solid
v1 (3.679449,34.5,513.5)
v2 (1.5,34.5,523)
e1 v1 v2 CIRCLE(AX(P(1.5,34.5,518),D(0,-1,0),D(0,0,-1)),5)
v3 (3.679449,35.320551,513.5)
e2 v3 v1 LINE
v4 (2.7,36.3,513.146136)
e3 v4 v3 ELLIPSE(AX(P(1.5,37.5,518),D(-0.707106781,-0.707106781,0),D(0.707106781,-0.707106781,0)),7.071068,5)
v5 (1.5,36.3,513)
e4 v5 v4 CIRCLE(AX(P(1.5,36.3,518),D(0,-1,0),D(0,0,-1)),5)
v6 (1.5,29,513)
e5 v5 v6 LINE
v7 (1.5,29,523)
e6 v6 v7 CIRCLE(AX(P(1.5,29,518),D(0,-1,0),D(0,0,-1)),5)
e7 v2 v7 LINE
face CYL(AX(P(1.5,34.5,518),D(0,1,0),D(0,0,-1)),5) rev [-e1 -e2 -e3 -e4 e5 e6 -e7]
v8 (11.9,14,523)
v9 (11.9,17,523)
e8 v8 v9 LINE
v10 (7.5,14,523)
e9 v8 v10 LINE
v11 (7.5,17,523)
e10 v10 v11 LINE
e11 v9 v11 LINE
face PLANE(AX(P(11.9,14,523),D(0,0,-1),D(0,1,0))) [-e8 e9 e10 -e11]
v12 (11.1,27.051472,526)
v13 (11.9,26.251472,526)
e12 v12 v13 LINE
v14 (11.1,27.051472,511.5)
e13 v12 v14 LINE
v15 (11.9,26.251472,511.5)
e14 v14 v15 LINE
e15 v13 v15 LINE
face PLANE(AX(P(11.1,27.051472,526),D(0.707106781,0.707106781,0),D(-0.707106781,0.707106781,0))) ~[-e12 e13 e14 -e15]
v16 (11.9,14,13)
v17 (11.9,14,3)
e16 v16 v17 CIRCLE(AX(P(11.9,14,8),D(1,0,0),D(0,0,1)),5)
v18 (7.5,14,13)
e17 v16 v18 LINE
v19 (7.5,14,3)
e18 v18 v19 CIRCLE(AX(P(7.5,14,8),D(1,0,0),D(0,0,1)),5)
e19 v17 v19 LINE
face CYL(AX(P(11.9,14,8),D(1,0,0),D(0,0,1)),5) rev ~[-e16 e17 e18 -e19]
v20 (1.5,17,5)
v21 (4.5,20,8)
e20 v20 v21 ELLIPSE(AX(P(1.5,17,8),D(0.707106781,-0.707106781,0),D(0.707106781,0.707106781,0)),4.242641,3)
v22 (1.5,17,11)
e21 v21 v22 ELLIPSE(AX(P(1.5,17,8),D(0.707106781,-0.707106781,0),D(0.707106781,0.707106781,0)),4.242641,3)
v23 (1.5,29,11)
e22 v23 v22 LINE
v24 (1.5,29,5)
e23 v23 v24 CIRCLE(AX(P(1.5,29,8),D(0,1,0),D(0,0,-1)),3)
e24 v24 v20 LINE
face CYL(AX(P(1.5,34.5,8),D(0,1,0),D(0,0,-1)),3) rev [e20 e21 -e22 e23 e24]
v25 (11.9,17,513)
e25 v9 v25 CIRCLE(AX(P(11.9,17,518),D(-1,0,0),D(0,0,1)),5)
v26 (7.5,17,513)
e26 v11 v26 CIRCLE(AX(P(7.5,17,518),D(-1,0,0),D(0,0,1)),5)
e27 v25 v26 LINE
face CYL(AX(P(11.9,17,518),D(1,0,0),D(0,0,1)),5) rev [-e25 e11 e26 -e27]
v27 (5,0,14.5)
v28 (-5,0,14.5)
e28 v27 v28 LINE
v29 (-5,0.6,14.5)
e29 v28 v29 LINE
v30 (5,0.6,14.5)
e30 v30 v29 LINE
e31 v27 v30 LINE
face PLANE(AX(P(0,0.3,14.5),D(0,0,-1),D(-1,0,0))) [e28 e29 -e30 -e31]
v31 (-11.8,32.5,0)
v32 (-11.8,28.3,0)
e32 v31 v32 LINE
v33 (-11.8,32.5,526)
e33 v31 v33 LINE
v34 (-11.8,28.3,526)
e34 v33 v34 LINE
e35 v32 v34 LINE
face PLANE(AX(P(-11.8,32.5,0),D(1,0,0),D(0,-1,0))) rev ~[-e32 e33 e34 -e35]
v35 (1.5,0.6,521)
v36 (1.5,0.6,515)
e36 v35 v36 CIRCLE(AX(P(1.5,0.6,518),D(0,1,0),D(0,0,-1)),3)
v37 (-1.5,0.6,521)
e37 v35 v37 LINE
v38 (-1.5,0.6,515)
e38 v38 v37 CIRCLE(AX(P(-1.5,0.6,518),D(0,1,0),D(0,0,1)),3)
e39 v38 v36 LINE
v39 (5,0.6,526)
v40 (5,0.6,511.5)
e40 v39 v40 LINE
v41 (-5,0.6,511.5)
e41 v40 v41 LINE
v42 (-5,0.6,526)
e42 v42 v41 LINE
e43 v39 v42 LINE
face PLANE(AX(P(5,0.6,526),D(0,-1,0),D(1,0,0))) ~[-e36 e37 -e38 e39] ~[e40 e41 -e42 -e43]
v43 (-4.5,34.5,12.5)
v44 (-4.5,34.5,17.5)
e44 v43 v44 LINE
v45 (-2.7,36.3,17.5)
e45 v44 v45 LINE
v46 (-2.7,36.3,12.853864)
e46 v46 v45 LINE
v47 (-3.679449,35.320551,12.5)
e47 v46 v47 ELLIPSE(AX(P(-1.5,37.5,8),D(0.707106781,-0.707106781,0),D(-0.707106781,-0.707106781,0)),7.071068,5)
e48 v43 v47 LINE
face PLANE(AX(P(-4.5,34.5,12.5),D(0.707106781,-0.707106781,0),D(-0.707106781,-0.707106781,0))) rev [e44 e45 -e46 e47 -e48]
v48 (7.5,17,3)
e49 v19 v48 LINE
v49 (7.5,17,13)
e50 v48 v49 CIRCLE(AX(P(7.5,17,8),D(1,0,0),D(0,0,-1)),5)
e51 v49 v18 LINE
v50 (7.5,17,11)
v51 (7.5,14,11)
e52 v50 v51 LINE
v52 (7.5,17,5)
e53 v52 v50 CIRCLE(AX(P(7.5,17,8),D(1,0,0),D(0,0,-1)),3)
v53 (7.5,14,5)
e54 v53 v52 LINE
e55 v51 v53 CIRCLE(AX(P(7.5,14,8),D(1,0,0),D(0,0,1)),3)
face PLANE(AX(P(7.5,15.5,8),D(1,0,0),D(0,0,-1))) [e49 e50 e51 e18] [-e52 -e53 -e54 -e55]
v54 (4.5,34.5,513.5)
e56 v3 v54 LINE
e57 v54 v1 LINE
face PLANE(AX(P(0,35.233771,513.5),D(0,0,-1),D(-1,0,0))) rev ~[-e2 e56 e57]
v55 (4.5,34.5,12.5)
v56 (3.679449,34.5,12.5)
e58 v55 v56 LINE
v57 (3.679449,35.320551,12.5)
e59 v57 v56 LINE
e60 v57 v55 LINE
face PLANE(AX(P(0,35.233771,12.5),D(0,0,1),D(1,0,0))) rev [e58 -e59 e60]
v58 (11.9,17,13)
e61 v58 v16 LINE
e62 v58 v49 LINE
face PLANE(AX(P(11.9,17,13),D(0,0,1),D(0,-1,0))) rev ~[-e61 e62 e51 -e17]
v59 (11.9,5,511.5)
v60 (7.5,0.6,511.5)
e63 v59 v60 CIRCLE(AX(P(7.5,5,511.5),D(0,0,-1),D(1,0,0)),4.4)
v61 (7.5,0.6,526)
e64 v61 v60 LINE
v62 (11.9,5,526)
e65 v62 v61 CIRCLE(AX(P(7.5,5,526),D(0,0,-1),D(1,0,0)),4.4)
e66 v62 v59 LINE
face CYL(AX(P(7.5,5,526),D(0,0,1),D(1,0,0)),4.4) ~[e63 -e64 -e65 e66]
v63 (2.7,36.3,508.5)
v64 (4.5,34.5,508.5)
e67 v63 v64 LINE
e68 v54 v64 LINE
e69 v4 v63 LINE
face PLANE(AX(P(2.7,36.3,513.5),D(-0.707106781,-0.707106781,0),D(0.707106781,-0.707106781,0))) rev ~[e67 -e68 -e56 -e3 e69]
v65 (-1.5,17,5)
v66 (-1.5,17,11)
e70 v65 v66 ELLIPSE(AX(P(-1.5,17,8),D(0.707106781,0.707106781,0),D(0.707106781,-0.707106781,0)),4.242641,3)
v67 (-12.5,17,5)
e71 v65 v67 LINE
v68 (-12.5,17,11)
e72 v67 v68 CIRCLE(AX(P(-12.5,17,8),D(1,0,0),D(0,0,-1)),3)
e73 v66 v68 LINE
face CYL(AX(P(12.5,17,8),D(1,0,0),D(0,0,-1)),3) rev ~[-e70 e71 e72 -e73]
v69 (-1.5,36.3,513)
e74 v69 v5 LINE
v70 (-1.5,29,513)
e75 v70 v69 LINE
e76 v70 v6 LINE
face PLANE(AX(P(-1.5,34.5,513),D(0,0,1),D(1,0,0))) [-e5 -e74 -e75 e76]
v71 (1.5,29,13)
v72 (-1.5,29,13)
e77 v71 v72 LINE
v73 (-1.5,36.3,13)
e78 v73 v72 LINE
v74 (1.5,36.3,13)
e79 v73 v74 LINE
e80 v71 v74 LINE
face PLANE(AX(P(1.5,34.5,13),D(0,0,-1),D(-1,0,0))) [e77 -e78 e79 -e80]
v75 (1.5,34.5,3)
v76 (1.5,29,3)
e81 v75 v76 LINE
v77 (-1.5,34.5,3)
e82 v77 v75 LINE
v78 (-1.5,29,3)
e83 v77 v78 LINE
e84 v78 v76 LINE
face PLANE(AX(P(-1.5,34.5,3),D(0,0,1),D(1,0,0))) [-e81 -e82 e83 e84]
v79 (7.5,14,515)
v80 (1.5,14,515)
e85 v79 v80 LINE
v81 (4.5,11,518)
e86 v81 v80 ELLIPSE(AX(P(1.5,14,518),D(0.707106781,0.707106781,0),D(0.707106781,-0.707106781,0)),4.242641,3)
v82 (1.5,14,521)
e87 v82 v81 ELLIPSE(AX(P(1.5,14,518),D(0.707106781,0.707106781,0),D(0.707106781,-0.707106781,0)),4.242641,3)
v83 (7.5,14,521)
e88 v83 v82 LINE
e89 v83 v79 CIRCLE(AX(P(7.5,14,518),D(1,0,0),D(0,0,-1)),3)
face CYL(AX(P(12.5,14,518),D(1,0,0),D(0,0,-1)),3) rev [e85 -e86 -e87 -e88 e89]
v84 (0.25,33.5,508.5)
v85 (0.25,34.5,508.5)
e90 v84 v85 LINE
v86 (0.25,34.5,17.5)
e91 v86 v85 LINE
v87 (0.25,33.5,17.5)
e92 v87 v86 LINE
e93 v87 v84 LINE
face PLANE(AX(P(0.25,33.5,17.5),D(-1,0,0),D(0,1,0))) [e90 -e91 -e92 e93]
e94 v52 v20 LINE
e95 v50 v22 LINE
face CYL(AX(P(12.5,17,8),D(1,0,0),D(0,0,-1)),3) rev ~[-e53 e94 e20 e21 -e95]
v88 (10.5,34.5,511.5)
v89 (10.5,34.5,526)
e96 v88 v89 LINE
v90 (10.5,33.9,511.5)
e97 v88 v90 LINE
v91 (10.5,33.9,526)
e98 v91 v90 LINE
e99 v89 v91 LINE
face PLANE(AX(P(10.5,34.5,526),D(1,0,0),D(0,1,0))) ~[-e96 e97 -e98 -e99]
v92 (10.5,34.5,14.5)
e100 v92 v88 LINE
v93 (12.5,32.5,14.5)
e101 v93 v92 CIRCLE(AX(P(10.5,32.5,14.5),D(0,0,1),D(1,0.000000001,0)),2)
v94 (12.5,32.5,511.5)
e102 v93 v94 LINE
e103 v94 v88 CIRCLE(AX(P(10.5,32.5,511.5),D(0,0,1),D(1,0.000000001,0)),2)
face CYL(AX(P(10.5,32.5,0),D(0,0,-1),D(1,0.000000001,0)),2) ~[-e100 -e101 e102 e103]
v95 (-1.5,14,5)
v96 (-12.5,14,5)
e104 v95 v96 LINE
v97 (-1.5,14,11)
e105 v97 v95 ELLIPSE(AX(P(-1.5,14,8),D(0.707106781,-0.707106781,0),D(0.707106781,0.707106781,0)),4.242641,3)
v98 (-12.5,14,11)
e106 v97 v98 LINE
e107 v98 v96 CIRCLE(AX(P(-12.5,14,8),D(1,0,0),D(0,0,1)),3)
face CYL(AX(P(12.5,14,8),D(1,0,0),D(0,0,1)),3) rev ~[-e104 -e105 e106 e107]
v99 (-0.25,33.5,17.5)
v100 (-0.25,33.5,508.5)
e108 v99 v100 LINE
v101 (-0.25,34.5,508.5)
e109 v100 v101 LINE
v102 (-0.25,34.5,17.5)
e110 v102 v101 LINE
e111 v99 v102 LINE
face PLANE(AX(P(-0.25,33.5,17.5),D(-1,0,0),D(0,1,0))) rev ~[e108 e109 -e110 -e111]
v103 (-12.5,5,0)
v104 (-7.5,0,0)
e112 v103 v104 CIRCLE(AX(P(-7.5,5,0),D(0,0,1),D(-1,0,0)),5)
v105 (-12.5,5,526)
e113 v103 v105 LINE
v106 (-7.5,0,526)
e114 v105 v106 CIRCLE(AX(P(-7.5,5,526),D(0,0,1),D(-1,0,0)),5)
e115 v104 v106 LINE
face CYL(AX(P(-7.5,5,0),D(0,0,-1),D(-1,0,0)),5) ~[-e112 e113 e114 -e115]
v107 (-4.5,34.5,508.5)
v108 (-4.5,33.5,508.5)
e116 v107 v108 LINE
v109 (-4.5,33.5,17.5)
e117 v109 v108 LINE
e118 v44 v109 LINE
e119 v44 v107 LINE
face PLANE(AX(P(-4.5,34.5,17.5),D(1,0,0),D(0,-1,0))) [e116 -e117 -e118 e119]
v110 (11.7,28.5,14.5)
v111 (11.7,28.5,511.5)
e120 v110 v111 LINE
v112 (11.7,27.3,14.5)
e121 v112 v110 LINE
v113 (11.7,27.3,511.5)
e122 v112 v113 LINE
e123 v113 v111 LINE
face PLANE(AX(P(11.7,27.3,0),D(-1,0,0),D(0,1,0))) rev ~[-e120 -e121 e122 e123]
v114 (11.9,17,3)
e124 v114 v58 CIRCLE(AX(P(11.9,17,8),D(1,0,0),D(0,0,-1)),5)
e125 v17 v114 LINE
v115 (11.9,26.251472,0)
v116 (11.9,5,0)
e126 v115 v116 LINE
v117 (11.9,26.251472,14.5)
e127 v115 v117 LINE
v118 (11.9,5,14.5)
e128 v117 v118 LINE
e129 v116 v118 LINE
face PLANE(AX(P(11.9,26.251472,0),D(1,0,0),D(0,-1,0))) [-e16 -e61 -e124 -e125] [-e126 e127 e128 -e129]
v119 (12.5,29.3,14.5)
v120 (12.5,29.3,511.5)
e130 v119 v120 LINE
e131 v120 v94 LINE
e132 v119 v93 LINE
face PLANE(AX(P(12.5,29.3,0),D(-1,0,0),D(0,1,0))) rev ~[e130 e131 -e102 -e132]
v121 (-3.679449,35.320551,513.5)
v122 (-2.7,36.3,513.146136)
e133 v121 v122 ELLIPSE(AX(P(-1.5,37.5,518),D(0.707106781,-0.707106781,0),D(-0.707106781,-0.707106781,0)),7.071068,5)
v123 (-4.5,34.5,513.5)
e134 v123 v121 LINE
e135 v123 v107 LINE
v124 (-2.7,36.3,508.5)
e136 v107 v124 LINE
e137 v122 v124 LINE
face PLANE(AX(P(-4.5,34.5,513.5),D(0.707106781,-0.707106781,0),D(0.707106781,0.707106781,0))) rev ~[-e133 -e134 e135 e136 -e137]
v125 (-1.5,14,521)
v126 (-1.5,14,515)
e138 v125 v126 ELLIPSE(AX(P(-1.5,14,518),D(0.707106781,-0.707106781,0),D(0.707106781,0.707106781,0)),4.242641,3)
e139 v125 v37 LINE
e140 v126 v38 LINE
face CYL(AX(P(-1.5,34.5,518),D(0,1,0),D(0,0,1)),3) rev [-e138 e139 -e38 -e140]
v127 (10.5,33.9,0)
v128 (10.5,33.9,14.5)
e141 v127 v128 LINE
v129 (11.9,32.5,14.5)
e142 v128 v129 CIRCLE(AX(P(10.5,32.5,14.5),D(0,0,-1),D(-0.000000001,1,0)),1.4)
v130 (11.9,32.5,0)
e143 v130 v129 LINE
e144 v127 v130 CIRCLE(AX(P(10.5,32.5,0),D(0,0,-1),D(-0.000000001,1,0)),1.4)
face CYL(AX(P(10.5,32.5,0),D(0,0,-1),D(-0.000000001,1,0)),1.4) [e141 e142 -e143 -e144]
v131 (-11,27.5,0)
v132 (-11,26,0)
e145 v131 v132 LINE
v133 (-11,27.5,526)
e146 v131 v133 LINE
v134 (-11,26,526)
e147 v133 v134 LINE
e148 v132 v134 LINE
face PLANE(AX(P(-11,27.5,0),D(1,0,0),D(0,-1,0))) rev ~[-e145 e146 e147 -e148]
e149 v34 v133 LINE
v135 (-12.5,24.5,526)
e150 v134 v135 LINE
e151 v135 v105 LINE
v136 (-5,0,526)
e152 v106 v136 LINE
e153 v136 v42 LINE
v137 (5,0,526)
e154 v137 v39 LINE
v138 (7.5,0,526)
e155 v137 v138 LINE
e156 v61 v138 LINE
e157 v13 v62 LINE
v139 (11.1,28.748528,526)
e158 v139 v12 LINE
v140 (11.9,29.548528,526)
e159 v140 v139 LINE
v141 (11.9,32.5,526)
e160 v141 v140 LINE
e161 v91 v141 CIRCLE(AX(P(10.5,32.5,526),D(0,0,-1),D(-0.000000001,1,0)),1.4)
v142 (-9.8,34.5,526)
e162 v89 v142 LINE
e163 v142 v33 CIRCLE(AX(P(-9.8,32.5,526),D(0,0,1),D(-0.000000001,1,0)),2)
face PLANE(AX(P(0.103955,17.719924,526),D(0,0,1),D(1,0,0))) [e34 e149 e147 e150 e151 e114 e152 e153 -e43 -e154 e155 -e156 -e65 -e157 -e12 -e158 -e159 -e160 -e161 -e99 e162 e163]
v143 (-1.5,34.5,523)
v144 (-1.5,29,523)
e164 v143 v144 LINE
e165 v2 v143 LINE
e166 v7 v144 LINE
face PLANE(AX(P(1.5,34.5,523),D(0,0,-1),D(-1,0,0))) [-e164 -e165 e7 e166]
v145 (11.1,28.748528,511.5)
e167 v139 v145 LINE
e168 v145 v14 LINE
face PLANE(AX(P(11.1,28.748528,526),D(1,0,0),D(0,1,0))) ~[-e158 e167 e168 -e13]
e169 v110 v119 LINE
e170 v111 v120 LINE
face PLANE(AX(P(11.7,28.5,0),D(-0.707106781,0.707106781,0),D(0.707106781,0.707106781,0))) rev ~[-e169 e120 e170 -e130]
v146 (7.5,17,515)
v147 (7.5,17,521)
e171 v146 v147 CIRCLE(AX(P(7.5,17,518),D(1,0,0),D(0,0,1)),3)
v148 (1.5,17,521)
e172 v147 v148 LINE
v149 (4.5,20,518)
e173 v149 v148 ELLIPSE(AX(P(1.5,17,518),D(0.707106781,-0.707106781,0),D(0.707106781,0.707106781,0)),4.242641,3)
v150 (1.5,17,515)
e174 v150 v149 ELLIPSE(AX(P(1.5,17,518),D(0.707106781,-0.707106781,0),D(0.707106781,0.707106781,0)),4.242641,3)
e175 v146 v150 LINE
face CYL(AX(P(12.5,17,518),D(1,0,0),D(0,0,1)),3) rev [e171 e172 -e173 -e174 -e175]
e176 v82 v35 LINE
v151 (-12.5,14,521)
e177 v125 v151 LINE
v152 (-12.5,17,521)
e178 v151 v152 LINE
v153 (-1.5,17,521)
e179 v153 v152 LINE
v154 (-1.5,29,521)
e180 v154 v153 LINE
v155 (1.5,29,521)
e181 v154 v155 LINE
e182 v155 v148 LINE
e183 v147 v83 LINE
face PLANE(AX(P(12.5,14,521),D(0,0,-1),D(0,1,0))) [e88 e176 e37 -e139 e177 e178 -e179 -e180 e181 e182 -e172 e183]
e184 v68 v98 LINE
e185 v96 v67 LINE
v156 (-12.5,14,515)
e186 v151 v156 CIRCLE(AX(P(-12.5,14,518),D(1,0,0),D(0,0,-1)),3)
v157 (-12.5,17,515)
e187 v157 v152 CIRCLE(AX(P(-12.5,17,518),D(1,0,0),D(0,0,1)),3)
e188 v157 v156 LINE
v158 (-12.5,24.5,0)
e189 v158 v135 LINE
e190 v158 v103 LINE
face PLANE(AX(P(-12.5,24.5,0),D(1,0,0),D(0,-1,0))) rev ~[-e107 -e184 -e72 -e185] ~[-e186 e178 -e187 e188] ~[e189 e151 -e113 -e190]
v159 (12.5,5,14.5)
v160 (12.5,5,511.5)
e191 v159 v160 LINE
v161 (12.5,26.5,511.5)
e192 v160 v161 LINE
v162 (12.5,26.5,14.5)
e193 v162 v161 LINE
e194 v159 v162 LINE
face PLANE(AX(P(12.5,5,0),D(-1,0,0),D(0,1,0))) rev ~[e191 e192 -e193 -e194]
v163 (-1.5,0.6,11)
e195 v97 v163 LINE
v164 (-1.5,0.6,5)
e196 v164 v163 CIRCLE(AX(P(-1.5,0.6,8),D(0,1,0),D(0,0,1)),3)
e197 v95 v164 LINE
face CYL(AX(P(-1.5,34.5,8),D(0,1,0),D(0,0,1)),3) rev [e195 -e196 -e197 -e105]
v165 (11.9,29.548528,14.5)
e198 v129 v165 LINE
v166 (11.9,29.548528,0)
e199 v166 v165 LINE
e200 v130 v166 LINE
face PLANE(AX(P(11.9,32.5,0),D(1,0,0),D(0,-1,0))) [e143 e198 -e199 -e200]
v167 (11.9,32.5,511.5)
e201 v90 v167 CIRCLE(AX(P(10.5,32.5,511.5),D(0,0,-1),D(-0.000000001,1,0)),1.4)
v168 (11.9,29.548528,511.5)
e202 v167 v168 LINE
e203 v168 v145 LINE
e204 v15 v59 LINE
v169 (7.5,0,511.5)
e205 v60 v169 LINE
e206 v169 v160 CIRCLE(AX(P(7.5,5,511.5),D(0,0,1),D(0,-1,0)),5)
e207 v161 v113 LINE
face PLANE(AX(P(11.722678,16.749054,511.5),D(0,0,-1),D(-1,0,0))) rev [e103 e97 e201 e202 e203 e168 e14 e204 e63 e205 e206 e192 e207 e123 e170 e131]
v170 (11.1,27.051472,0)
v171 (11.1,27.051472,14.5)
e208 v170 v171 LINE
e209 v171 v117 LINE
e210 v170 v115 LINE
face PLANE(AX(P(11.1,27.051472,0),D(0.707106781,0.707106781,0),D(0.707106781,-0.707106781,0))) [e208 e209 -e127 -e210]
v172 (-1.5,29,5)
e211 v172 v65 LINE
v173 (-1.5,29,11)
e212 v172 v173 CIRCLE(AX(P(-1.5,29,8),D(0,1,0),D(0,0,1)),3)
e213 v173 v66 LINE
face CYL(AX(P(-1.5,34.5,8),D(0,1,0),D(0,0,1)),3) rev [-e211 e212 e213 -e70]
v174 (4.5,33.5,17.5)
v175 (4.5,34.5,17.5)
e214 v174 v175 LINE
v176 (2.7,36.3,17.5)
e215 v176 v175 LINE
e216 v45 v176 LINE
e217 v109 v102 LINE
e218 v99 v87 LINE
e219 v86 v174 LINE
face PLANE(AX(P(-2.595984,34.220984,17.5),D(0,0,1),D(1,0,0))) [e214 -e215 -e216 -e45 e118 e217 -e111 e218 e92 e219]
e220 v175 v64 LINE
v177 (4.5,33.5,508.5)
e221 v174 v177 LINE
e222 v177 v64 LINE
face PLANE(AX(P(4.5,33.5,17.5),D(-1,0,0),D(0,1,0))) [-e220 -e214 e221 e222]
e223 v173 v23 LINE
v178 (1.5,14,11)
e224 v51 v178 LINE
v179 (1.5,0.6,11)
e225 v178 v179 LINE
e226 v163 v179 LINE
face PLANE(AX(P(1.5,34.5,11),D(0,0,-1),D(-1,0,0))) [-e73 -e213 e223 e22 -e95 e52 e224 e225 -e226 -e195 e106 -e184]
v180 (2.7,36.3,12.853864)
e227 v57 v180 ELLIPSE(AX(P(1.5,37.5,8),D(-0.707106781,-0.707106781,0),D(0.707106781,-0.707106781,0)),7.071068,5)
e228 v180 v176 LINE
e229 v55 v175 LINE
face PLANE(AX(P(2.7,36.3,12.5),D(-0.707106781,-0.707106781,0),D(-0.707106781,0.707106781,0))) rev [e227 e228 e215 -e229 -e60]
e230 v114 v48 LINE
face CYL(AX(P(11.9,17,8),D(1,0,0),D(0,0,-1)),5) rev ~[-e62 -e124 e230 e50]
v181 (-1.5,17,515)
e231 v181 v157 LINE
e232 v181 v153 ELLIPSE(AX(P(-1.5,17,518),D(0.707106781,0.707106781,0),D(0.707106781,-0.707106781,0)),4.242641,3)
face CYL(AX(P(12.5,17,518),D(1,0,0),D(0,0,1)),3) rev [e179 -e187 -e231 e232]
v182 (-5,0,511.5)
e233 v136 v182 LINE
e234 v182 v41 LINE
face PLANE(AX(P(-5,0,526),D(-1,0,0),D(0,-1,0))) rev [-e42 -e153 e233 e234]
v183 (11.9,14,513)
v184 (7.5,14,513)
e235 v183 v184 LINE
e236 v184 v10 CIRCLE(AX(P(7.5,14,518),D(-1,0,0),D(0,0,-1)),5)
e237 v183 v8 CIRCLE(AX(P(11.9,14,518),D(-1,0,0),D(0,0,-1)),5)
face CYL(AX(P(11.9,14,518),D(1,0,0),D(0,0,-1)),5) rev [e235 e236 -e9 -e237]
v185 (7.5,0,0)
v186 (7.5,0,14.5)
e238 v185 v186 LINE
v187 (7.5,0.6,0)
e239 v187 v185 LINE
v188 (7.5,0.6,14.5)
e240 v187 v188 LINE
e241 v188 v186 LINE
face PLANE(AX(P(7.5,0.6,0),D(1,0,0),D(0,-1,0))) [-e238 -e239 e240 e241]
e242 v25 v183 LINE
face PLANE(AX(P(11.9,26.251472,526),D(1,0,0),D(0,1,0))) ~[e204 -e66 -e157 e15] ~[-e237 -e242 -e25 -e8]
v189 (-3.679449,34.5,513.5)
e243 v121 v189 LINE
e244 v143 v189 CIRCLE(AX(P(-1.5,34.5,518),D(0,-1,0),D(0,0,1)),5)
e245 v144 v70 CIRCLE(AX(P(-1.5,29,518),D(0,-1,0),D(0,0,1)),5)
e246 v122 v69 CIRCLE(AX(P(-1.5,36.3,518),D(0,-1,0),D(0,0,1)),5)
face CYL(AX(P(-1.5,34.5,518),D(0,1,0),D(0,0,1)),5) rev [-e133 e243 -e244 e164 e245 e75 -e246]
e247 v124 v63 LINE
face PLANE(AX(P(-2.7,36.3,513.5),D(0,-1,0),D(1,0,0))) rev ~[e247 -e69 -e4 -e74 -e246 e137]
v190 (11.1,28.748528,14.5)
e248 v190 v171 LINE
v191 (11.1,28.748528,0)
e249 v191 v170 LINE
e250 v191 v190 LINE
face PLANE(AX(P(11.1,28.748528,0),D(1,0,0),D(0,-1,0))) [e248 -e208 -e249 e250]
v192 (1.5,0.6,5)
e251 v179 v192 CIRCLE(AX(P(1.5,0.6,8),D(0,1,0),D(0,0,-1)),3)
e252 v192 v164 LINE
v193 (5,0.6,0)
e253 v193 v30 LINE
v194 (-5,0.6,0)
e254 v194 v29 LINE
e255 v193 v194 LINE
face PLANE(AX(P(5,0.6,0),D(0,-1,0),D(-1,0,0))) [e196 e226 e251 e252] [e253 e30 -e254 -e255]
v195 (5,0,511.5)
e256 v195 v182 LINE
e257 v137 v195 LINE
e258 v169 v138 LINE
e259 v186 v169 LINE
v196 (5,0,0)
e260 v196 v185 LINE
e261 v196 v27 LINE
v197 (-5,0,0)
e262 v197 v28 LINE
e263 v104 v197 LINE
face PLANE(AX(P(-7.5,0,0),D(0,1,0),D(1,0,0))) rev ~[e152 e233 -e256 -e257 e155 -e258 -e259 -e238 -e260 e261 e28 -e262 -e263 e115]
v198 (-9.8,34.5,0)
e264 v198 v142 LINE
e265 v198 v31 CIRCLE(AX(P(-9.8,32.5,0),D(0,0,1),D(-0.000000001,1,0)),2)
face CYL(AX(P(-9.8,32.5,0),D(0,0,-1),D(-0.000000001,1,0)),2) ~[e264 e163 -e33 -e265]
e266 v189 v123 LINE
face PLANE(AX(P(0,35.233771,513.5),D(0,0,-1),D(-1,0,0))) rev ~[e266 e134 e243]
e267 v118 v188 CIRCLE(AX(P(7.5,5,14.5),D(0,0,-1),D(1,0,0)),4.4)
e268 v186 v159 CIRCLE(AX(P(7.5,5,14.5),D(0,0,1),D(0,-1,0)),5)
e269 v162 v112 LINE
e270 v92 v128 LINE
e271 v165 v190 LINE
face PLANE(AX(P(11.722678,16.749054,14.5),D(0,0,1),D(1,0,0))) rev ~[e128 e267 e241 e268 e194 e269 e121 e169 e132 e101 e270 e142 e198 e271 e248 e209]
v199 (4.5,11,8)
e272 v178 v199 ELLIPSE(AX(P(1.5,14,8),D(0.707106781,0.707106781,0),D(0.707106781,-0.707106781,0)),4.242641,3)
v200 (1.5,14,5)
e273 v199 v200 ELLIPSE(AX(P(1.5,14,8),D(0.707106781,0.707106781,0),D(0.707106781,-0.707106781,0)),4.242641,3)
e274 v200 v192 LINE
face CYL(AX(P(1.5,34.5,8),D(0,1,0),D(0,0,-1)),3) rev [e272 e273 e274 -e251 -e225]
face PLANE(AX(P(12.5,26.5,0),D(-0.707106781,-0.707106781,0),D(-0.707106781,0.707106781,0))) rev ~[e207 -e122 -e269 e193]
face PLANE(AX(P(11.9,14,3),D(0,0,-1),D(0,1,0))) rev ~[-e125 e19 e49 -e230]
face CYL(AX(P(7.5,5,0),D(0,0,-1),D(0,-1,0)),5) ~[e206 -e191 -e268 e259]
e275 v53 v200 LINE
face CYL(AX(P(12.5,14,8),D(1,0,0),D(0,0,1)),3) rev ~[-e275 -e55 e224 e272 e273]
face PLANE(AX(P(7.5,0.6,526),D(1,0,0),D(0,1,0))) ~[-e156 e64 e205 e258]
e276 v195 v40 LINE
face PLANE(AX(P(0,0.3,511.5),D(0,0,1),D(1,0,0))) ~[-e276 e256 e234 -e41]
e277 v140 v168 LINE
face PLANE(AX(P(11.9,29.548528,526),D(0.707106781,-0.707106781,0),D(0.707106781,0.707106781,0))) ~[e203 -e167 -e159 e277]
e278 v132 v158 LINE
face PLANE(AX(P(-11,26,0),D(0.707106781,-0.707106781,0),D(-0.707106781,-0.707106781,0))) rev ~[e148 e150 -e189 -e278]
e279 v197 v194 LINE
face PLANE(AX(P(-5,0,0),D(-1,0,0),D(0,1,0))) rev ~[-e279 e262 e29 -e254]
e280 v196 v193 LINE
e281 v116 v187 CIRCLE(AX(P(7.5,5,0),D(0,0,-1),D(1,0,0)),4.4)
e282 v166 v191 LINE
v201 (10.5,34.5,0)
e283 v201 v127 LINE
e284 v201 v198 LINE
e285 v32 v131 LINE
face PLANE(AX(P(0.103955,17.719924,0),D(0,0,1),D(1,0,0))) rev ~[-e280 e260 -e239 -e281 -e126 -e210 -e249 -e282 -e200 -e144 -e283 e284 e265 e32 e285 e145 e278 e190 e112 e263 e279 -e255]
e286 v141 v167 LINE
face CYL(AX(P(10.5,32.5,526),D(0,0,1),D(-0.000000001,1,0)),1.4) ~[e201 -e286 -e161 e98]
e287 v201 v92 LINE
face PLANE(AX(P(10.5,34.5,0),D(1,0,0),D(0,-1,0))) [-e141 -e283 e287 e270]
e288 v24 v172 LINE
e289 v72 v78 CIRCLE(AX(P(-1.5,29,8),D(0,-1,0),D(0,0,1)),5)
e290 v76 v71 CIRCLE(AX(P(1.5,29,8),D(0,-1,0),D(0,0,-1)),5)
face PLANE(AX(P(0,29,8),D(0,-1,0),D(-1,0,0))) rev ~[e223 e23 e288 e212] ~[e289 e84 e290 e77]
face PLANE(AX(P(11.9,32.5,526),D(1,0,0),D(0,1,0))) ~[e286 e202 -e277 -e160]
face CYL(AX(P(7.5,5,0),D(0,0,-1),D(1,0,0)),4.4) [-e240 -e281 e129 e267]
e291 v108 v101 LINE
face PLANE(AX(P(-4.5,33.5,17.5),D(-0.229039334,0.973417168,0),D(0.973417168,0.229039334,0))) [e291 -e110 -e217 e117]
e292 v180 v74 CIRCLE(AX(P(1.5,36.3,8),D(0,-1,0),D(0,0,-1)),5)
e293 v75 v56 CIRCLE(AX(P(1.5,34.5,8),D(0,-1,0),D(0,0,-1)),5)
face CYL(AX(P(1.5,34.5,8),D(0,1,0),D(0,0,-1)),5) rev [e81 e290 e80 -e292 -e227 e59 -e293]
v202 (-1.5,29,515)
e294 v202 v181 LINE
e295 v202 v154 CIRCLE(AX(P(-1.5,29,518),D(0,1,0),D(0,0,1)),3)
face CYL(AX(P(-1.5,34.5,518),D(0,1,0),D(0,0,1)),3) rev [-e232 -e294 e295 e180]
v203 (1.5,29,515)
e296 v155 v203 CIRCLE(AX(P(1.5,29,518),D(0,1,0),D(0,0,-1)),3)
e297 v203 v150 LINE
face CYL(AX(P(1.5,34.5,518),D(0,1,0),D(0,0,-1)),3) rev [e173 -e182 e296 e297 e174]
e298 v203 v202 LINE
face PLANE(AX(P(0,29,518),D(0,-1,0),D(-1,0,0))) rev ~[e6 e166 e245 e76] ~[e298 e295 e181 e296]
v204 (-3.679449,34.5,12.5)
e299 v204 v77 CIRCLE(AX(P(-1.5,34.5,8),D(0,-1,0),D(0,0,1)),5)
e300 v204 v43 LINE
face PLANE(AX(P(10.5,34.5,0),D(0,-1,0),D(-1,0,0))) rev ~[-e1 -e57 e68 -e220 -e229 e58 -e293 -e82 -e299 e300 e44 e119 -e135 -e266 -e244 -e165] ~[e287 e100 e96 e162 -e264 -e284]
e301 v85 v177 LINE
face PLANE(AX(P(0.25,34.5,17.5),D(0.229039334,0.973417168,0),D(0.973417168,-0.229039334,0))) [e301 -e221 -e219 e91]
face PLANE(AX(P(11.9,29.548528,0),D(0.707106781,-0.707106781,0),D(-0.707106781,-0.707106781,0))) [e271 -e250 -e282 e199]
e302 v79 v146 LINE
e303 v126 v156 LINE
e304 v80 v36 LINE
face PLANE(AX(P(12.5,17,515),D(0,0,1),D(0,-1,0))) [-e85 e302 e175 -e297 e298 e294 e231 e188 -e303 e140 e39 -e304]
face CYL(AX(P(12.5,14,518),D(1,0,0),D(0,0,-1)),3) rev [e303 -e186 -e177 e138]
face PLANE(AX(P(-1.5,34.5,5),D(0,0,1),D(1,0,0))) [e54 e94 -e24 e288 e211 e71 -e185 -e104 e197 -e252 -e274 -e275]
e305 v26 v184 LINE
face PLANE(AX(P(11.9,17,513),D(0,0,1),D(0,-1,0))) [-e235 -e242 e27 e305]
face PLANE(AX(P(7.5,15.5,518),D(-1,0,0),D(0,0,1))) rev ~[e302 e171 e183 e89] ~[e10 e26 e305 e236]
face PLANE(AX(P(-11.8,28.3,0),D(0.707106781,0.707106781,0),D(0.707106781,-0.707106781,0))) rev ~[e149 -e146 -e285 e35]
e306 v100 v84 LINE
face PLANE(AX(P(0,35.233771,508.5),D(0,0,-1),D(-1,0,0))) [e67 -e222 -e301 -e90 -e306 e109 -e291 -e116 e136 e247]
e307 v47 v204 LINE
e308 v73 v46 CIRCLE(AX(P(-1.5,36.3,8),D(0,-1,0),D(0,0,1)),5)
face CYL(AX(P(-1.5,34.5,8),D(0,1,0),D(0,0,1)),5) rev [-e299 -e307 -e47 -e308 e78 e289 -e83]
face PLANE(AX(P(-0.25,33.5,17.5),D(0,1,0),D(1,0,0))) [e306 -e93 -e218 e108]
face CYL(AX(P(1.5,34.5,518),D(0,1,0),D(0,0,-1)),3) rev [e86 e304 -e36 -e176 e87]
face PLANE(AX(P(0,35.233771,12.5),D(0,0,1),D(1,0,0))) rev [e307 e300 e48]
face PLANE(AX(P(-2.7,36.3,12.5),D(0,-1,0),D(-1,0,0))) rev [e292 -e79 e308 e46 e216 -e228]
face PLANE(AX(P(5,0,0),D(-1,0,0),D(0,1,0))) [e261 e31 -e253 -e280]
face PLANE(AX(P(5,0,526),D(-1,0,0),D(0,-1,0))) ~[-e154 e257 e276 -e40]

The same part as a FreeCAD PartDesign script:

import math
import FreeCAD as App
import Part
import Sketcher

V = App.Vector

doc = App.newDocument("Part")
body = doc.addObject("PartDesign::Body", "Body")

# Sketch on XY plane
sketch1 = body.newObject("Sketcher::SketchObject", "Sketch")
sketch1.AttachmentSupport = (doc.getObject("XY_Plane"), [""])
sketch1.MapMode = "FlatFace"
sketch1.addGeometry([
    Part.LineSegment(V(-11.8, 32.5, 0), V(-11.8, 28.3, 0)),  # 0
    Part.LineSegment(V(-11.8, 28.3, 0), V(-11, 27.5, 0)),  # 1
    Part.LineSegment(V(-11, 27.5, 0), V(-11, 26, 0)),  # 2
    Part.LineSegment(V(-11, 26, 0), V(-12.5, 24.5, 0)),  # 3
    Part.LineSegment(V(-12.5, 24.5, 0), V(-12.5, 5, 0)),  # 4
    Part.ArcOfCircle(Part.Circle(V(-7.5, 5, 0), V(0, 0, 1), 5), math.radians(180), math.radians(270)),  # 5
    Part.LineSegment(V(-7.5, 0, 0), V(7.5, 0, 0)),  # 6
    Part.ArcOfCircle(Part.Circle(V(7.5, 5, 0), V(0, 0, 1), 5), math.radians(-90), math.radians(0)),  # 7
    Part.LineSegment(V(12.5, 5, 0), V(12.5, 26.5, 0)),  # 8
    Part.LineSegment(V(12.5, 26.5, 0), V(11.7, 27.3, 0)),  # 9
    Part.LineSegment(V(11.7, 27.3, 0), V(11.7, 28.5, 0)),  # 10
    Part.LineSegment(V(11.7, 28.5, 0), V(12.5, 29.3, 0)),  # 11
    Part.LineSegment(V(12.5, 29.3, 0), V(12.5, 32.5, 0)),  # 12
    Part.ArcOfCircle(Part.Circle(V(10.5, 32.5, 0), V(0, 0, 1), 2), math.radians(0), math.radians(90)),  # 13
    Part.LineSegment(V(10.5, 34.5, 0), V(-9.8, 34.5, 0)),  # 14
    Part.ArcOfCircle(Part.Circle(V(-9.8, 32.5, 0), V(0, 0, 1), 2), math.radians(90), math.radians(180)),  # 15
], False)
sketch1.addConstraint([
    Sketcher.Constraint("Coincident", 0, 2, 1, 1),
    Sketcher.Constraint("Coincident", 1, 2, 2, 1),
    Sketcher.Constraint("Coincident", 2, 2, 3, 1),
    Sketcher.Constraint("Coincident", 3, 2, 4, 1),
    Sketcher.Constraint("Tangent", 4, 2, 5, 1),
    Sketcher.Constraint("Tangent", 5, 2, 6, 1),
    Sketcher.Constraint("Tangent", 6, 2, 7, 1),
    Sketcher.Constraint("Tangent", 7, 2, 8, 1),
    Sketcher.Constraint("Coincident", 8, 2, 9, 1),
    Sketcher.Constraint("Coincident", 9, 2, 10, 1),
    Sketcher.Constraint("Coincident", 10, 2, 11, 1),
    Sketcher.Constraint("Coincident", 11, 2, 12, 1),
    Sketcher.Constraint("Tangent", 12, 2, 13, 1),
    Sketcher.Constraint("Tangent", 13, 2, 14, 1),
    Sketcher.Constraint("Tangent", 14, 2, 15, 1),
    Sketcher.Constraint("Tangent", 15, 2, 0, 1),
    Sketcher.Constraint("Vertical", 0),
    Sketcher.Constraint("Vertical", 2),
    Sketcher.Constraint("Vertical", 4),
    Sketcher.Constraint("Horizontal", 6),
    Sketcher.Constraint("Vertical", 8),
    Sketcher.Constraint("Vertical", 10),
    Sketcher.Constraint("Vertical", 12),
    Sketcher.Constraint("Horizontal", 14),
    Sketcher.Constraint("Equal", 5, 7),
    Sketcher.Constraint("Equal", 13, 15),
    Sketcher.Constraint("Symmetric", 5, 2, 6, 2, -1, 1),
    Sketcher.Constraint("Perpendicular", 1, 3),
    Sketcher.Constraint("Perpendicular", 3, 9),
    Sketcher.Constraint("Perpendicular", 9, 11),
    Sketcher.Constraint("Vertical", 8, 2, 11, 2),
    Sketcher.Constraint("Equal", 1, 9),
    Sketcher.Constraint("Equal", 9, 11),
    Sketcher.Constraint("Radius", 5, 5.0),
    Sketcher.Constraint("Radius", 13, 2.0),
    Sketcher.Constraint("DistanceX", 6, 1, 6, 2, 15.0),
    Sketcher.Constraint("DistanceX", 14, 2, 14, 1, 20.3),
    Sketcher.Constraint("DistanceY", 0, 2, 0, 1, 4.2),
    Sketcher.Constraint("DistanceY", 2, 2, 2, 1, 1.5),
    Sketcher.Constraint("DistanceY", 4, 2, 4, 1, 19.5),
    Sketcher.Constraint("DistanceY", 8, 1, 8, 2, 21.5),
    Sketcher.Constraint("DistanceY", 10, 1, 10, 2, 1.2),
    Sketcher.Constraint("DistanceX", 1, 2, -1, 1, 11.0),
])
pad1 = body.newObject("PartDesign::Pad", "Pad")
pad1.Profile = sketch1
pad1.Length = 526

# Sketch on XY plane
sketch2 = body.newObject("Sketcher::SketchObject", "Sketch001")
sketch2.AttachmentSupport = (doc.getObject("XY_Plane"), [""])
sketch2.MapMode = "FlatFace"
sketch2.addGeometry([
    Part.ArcOfCircle(Part.Circle(V(10.5, 32.5, 0), V(0, 0, 1), 1.4), math.radians(0), math.radians(90)),  # 0
    Part.LineSegment(V(10.5, 33.9, 0), V(10.5, 34.5, 0)),  # 1
    Part.ArcOfCircle(Part.Circle(V(10.5, 32.5, 0), V(0, 0, 1), 2), math.radians(0), math.radians(90)),  # 2
    Part.LineSegment(V(12.5, 32.5, 0), V(12.5, 29.3, 0)),  # 3
    Part.LineSegment(V(12.5, 29.3, 0), V(11.7, 28.5, 0)),  # 4
    Part.LineSegment(V(11.7, 28.5, 0), V(11.7, 27.3, 0)),  # 5
    Part.LineSegment(V(11.7, 27.3, 0), V(12.5, 26.5, 0)),  # 6
    Part.LineSegment(V(12.5, 26.5, 0), V(12.5, 5, 0)),  # 7
    Part.ArcOfCircle(Part.Circle(V(7.5, 5, 0), V(0, 0, 1), 5), math.radians(-90), math.radians(0)),  # 8
    Part.LineSegment(V(7.5, 0, 0), V(7.5, 0.6, 0)),  # 9
    Part.ArcOfCircle(Part.Circle(V(7.5, 5, 0), V(0, 0, 1), 4.4), math.radians(-90), math.radians(0)),  # 10
    Part.LineSegment(V(11.9, 5, 0), V(11.9, 26.251472, 0)),  # 11
    Part.LineSegment(V(11.9, 26.251472, 0), V(11.1, 27.051472, 0)),  # 12
    Part.LineSegment(V(11.1, 27.051472, 0), V(11.1, 28.748528, 0)),  # 13
    Part.LineSegment(V(11.1, 28.748528, 0), V(11.9, 29.548528, 0)),  # 14
    Part.LineSegment(V(11.9, 29.548528, 0), V(11.9, 32.5, 0)),  # 15
    Part.LineSegment(V(5, 0.6, 0), V(5, 0, 0)),  # 16
    Part.LineSegment(V(5, 0, 0), V(-5, 0, 0)),  # 17
    Part.LineSegment(V(-5, 0, 0), V(-5, 0.6, 0)),  # 18
    Part.LineSegment(V(-5, 0.6, 0), V(5, 0.6, 0)),  # 19
], False)
sketch2.addConstraint([
    Sketcher.Constraint("Coincident", 0, 2, 1, 1),
    Sketcher.Constraint("Coincident", 1, 2, 2, 2),
    Sketcher.Constraint("Tangent", 2, 1, 3, 1),
    Sketcher.Constraint("Coincident", 3, 2, 4, 1),
    Sketcher.Constraint("Coincident", 4, 2, 5, 1),
    Sketcher.Constraint("Coincident", 5, 2, 6, 1),
    Sketcher.Constraint("Coincident", 6, 2, 7, 1),
    Sketcher.Constraint("Tangent", 7, 2, 8, 2),
    Sketcher.Constraint("Coincident", 8, 1, 9, 1),
    Sketcher.Constraint("Coincident", 9, 2, 10, 1),
    Sketcher.Constraint("Tangent", 10, 2, 11, 1),
    Sketcher.Constraint("Coincident", 11, 2, 12, 1),
    Sketcher.Constraint("Coincident", 12, 2, 13, 1),
    Sketcher.Constraint("Coincident", 13, 2, 14, 1),
    Sketcher.Constraint("Coincident", 14, 2, 15, 1),
    Sketcher.Constraint("Tangent", 15, 2, 0, 1),
    Sketcher.Constraint("Coincident", 16, 2, 17, 1),
    Sketcher.Constraint("Coincident", 17, 2, 18, 1),
    Sketcher.Constraint("Coincident", 18, 2, 19, 1),
    Sketcher.Constraint("Coincident", 19, 2, 16, 1),
    Sketcher.Constraint("Vertical", 1),
    Sketcher.Constraint("Vertical", 3),
    Sketcher.Constraint("Vertical", 5),
    Sketcher.Constraint("Vertical", 7),
    Sketcher.Constraint("Vertical", 9),
    Sketcher.Constraint("Vertical", 11),
    Sketcher.Constraint("Vertical", 13),
    Sketcher.Constraint("Vertical", 15),
    Sketcher.Constraint("Vertical", 16),
    Sketcher.Constraint("Horizontal", 17),
    Sketcher.Constraint("Vertical", 18),
    Sketcher.Constraint("Horizontal", 19),
    Sketcher.Constraint("Coincident", 2, 3, 0, 3),
    Sketcher.Constraint("Coincident", 10, 3, 8, 3),
    Sketcher.Constraint("Symmetric", 16, 2, 17, 2, -1, 1),
    Sketcher.Constraint("PointOnObject", 8, 1, -1),
    Sketcher.Constraint("Perpendicular", 4, 6),
    Sketcher.Constraint("Parallel", 6, 12),
    Sketcher.Constraint("Perpendicular", 12, 14),
    Sketcher.Constraint("Horizontal", 9, 2, 18, 2),
    Sketcher.Constraint("Vertical", 2, 3, 0, 2),
    Sketcher.Constraint("Vertical", 3, 2, 6, 2),
    Sketcher.Constraint("Vertical", 10, 3, 8, 1),
    Sketcher.Constraint("Vertical", 11, 2, 14, 2),
    Sketcher.Constraint("Equal", 4, 6),
    Sketcher.Constraint("Equal", 6, 12),
    Sketcher.Constraint("Radius", 2, 2.0),
    Sketcher.Constraint("Radius", 8, 5.0),
    Sketcher.Constraint("Radius", 0, 1.4),
    Sketcher.Constraint("DistanceX", 17, 2, 17, 1, 10.0),
    Sketcher.Constraint("DistanceY", 3, 2, 3, 1, 3.2),
    Sketcher.Constraint("DistanceY", 5, 2, 5, 1, 1.2),
    Sketcher.Constraint("DistanceY", 7, 2, 7, 1, 21.5),
    Sketcher.Constraint("DistanceY", 4, 2, 2, 1, 4.0),
    Sketcher.Constraint("DistanceX", -1, 1, 0, 3, 10.5),
    Sketcher.Constraint("DistanceY", 11, 1, 11, 2, 21.251472),
    Sketcher.Constraint("DistanceY", 15, 1, 15, 2, 2.951472),
])
pocket1 = body.newObject("PartDesign::Pocket", "Pocket")
pocket1.Profile = sketch2
pocket1.Length = 14.5
pocket1.Reversed = True

# Sketch on XY plane
sketch3 = body.newObject("Sketcher::SketchObject", "Sketch002")
sketch3.AttachmentSupport = (doc.getObject("XY_Plane"), [""])
sketch3.MapMode = "FlatFace"
sketch3.AttachmentOffset = App.Placement(V(0, 0, 513.5), App.Rotation())
sketch3.addGeometry([
    Part.LineSegment(V(-2.7, 36.3, 0), V(-4.5, 34.5, 0)),
    Part.LineSegment(V(-4.5, 34.5, 0), V(4.5, 34.5, 0)),
    Part.LineSegment(V(4.5, 34.5, 0), V(2.7, 36.3, 0)),
    Part.LineSegment(V(2.7, 36.3, 0), V(-2.7, 36.3, 0)),
], False)
sketch3.addConstraint([
    Sketcher.Constraint("Coincident", 0, 2, 1, 1),
    Sketcher.Constraint("Coincident", 1, 2, 2, 1),
    Sketcher.Constraint("Coincident", 2, 2, 3, 1),
    Sketcher.Constraint("Coincident", 3, 2, 0, 1),
    Sketcher.Constraint("Horizontal", 1),
    Sketcher.Constraint("Horizontal", 3),
    Sketcher.Constraint("Perpendicular", 0, 2),
    Sketcher.Constraint("Equal", 0, 2),
    Sketcher.Constraint("DistanceX", 1, 1, 1, 2, 9.0),
    Sketcher.Constraint("DistanceX", 3, 2, 3, 1, 5.4),
    Sketcher.Constraint("DistanceX", 0, 2, -1, 1, 4.5),
    Sketcher.Constraint("DistanceY", -1, 1, 0, 2, 34.5),
])
pad2 = body.newObject("PartDesign::Pad", "Pad001")
pad2.Profile = sketch3
pad2.Length = 5
pad2.Reversed = True
doc.recompute()

datumplane = body.newObject("PartDesign::Plane", "DatumPlane")
datumplane.AttachmentSupport = (doc.getObject("XY_Plane"), [""])
datumplane.MapMode = "FlatFace"
datumplane.AttachmentOffset = App.Placement(V(0, 0, 263), App.Rotation())
mirrored = body.newObject("PartDesign::Mirrored", "Mirrored")
mirrored.Originals = [pocket1, pad2]
mirrored.MirrorPlane = (datumplane, [""])
body.Tip = mirrored

# Sketch on YZ plane
sketch4 = body.newObject("Sketcher::SketchObject", "Sketch003")
sketch4.AttachmentSupport = (doc.getObject("YZ_Plane"), [""])
sketch4.MapMode = "FlatFace"
sketch4.AttachmentOffset = App.Placement(V(0, 0, 11.9), App.Rotation())
sketch4.addGeometry([
    Part.LineSegment(V(17, 523, 0), V(14, 523, 0)),  # 0
    Part.ArcOfCircle(Part.Circle(V(14, 518, 0), V(0, 0, 1), 5), math.radians(90), math.radians(270)),  # 1
    Part.LineSegment(V(14, 513, 0), V(17, 513, 0)),  # 2
    Part.ArcOfCircle(Part.Circle(V(17, 518, 0), V(0, 0, 1), 5), math.radians(-90), math.radians(90)),  # 3
    Part.LineSegment(V(14, 3, 0), V(17, 3, 0)),  # 4
    Part.ArcOfCircle(Part.Circle(V(17, 8, 0), V(0, 0, 1), 5), math.radians(-90), math.radians(90)),  # 5
    Part.LineSegment(V(17, 13, 0), V(14, 13, 0)),  # 6
    Part.ArcOfCircle(Part.Circle(V(14, 8, 0), V(0, 0, 1), 5), math.radians(90), math.radians(270)),  # 7
], False)
sketch4.addConstraint([
    Sketcher.Constraint("Tangent", 0, 2, 1, 1),
    Sketcher.Constraint("Tangent", 1, 2, 2, 1),
    Sketcher.Constraint("Tangent", 2, 2, 3, 1),
    Sketcher.Constraint("Tangent", 3, 2, 0, 1),
    Sketcher.Constraint("Tangent", 4, 2, 5, 1),
    Sketcher.Constraint("Tangent", 5, 2, 6, 1),
    Sketcher.Constraint("Tangent", 6, 2, 7, 1),
    Sketcher.Constraint("Tangent", 7, 2, 4, 1),
    Sketcher.Constraint("Horizontal", 0),
    Sketcher.Constraint("Horizontal", 2),
    Sketcher.Constraint("Horizontal", 4),
    Sketcher.Constraint("Horizontal", 6),
    Sketcher.Constraint("Equal", 3, 5),
    Sketcher.Constraint("Vertical", 3, 3, 5, 3),
    Sketcher.Constraint("Vertical", 1, 3, 7, 3),
    Sketcher.Constraint("Radius", 1, 5.0),
    Sketcher.Constraint("DistanceX", 0, 2, 0, 1, 3.0),
    Sketcher.Constraint("DistanceX", -1, 1, 1, 3, 14.0),
    Sketcher.Constraint("DistanceY", -1, 1, 1, 3, 518.0),
    Sketcher.Constraint("DistanceY", -1, 1, 5, 3, 8.0),
])
pocket2 = body.newObject("PartDesign::Pocket", "Pocket001")
pocket2.Profile = sketch4
pocket2.Length = 4.4

# Sketch on YZ plane
sketch5 = body.newObject("Sketcher::SketchObject", "Sketch004")
sketch5.AttachmentSupport = (doc.getObject("YZ_Plane"), [""])
sketch5.MapMode = "FlatFace"
sketch5.AttachmentOffset = App.Placement(V(0, 0, 12.5), App.Rotation())
sketch5.addGeometry([
    Part.LineSegment(V(17, 521, 0), V(14, 521, 0)),  # 0
    Part.ArcOfCircle(Part.Circle(V(14, 518, 0), V(0, 0, 1), 3), math.radians(90), math.radians(270)),  # 1
    Part.LineSegment(V(14, 515, 0), V(17, 515, 0)),  # 2
    Part.ArcOfCircle(Part.Circle(V(17, 518, 0), V(0, 0, 1), 3), math.radians(-90), math.radians(90)),  # 3
    Part.LineSegment(V(14, 5, 0), V(17, 5, 0)),  # 4
    Part.ArcOfCircle(Part.Circle(V(17, 8, 0), V(0, 0, 1), 3), math.radians(-90), math.radians(90)),  # 5
    Part.LineSegment(V(17, 11, 0), V(14, 11, 0)),  # 6
    Part.ArcOfCircle(Part.Circle(V(14, 8, 0), V(0, 0, 1), 3), math.radians(90), math.radians(270)),  # 7
], False)
sketch5.addConstraint([
    Sketcher.Constraint("Tangent", 0, 2, 1, 1),
    Sketcher.Constraint("Tangent", 1, 2, 2, 1),
    Sketcher.Constraint("Tangent", 2, 2, 3, 1),
    Sketcher.Constraint("Tangent", 3, 2, 0, 1),
    Sketcher.Constraint("Tangent", 4, 2, 5, 1),
    Sketcher.Constraint("Tangent", 5, 2, 6, 1),
    Sketcher.Constraint("Tangent", 6, 2, 7, 1),
    Sketcher.Constraint("Tangent", 7, 2, 4, 1),
    Sketcher.Constraint("Horizontal", 0),
    Sketcher.Constraint("Horizontal", 2),
    Sketcher.Constraint("Horizontal", 4),
    Sketcher.Constraint("Horizontal", 6),
    Sketcher.Constraint("Equal", 3, 5),
    Sketcher.Constraint("Vertical", 3, 3, 5, 3),
    Sketcher.Constraint("Vertical", 1, 3, 7, 3),
    Sketcher.Constraint("Radius", 1, 3.0),
    Sketcher.Constraint("DistanceX", 0, 2, 0, 1, 3.0),
    Sketcher.Constraint("DistanceX", -1, 1, 1, 3, 14.0),
    Sketcher.Constraint("DistanceY", -1, 1, 1, 3, 518.0),
    Sketcher.Constraint("DistanceY", -1, 1, 5, 3, 8.0),
])
pocket3 = body.newObject("PartDesign::Pocket", "Pocket002")
pocket3.Profile = sketch5
pocket3.Type = "ThroughAll"

# Sketch on XZ plane
sketch6 = body.newObject("Sketcher::SketchObject", "Sketch005")
sketch6.AttachmentSupport = (doc.getObject("XZ_Plane"), [""])
sketch6.MapMode = "FlatFace"
sketch6.AttachmentOffset = App.Placement(V(0, 0, -34.5), App.Rotation())
sketch6.addGeometry([
    Part.LineSegment(V(1.5, 3, 0), V(-1.5, 3, 0)),  # 0
    Part.ArcOfCircle(Part.Circle(V(-1.5, 8, 0), V(0, 0, 1), 5), math.radians(90), math.radians(270)),  # 1
    Part.LineSegment(V(-1.5, 13, 0), V(1.5, 13, 0)),  # 2
    Part.ArcOfCircle(Part.Circle(V(1.5, 8, 0), V(0, 0, 1), 5), math.radians(-90), math.radians(90)),  # 3
    Part.LineSegment(V(1.5, 513, 0), V(-1.5, 513, 0)),  # 4
    Part.ArcOfCircle(Part.Circle(V(-1.5, 518, 0), V(0, 0, 1), 5), math.radians(90), math.radians(270)),  # 5
    Part.LineSegment(V(-1.5, 523, 0), V(1.5, 523, 0)),  # 6
    Part.ArcOfCircle(Part.Circle(V(1.5, 518, 0), V(0, 0, 1), 5), math.radians(-90), math.radians(90)),  # 7
], False)
sketch6.addConstraint([
    Sketcher.Constraint("Tangent", 0, 2, 1, 2),
    Sketcher.Constraint("Tangent", 1, 1, 2, 1),
    Sketcher.Constraint("Tangent", 2, 2, 3, 2),
    Sketcher.Constraint("Tangent", 3, 1, 0, 1),
    Sketcher.Constraint("Tangent", 4, 2, 5, 2),
    Sketcher.Constraint("Tangent", 5, 1, 6, 1),
    Sketcher.Constraint("Tangent", 6, 2, 7, 2),
    Sketcher.Constraint("Tangent", 7, 1, 4, 1),
    Sketcher.Constraint("Horizontal", 0),
    Sketcher.Constraint("Horizontal", 2),
    Sketcher.Constraint("Horizontal", 4),
    Sketcher.Constraint("Horizontal", 6),
    Sketcher.Constraint("Equal", 3, 5),
    Sketcher.Constraint("Vertical", 1, 3, 5, 3),
    Sketcher.Constraint("Vertical", 3, 3, 7, 3),
    Sketcher.Constraint("Radius", 1, 5.0),
    Sketcher.Constraint("DistanceX", 0, 2, 0, 1, 3.0),
    Sketcher.Constraint("DistanceY", -1, 1, 1, 3, 8.0),
    Sketcher.Constraint("DistanceY", -1, 1, 5, 3, 518.0),
    Sketcher.Constraint("DistanceX", 1, 3, -1, 1, 1.5),
])
pocket4 = body.newObject("PartDesign::Pocket", "Pocket003")
pocket4.Profile = sketch6
pocket4.Type = "TwoLengths"
pocket4.Length = 5.5
pocket4.Length2 = 5.5

# Sketch on XZ plane
sketch7 = body.newObject("Sketcher::SketchObject", "Sketch006")
sketch7.AttachmentSupport = (doc.getObject("XZ_Plane"), [""])
sketch7.MapMode = "FlatFace"
sketch7.AttachmentOffset = App.Placement(V(0, 0, -34.5), App.Rotation())
sketch7.addGeometry([
    Part.LineSegment(V(1.5, 515, 0), V(-1.5, 515, 0)),  # 0
    Part.ArcOfCircle(Part.Circle(V(-1.5, 518, 0), V(0, 0, 1), 3), math.radians(90), math.radians(270)),  # 1
    Part.LineSegment(V(-1.5, 521, 0), V(1.5, 521, 0)),  # 2
    Part.ArcOfCircle(Part.Circle(V(1.5, 518, 0), V(0, 0, 1), 3), math.radians(-90), math.radians(90)),  # 3
    Part.LineSegment(V(1.5, 5, 0), V(-1.5, 5, 0)),  # 4
    Part.ArcOfCircle(Part.Circle(V(-1.5, 8, 0), V(0, 0, 1), 3), math.radians(90), math.radians(270)),  # 5
    Part.LineSegment(V(-1.5, 11, 0), V(1.5, 11, 0)),  # 6
    Part.ArcOfCircle(Part.Circle(V(1.5, 8, 0), V(0, 0, 1), 3), math.radians(-90), math.radians(90)),  # 7
], False)
sketch7.addConstraint([
    Sketcher.Constraint("Tangent", 0, 2, 1, 2),
    Sketcher.Constraint("Tangent", 1, 1, 2, 1),
    Sketcher.Constraint("Tangent", 2, 2, 3, 2),
    Sketcher.Constraint("Tangent", 3, 1, 0, 1),
    Sketcher.Constraint("Tangent", 4, 2, 5, 2),
    Sketcher.Constraint("Tangent", 5, 1, 6, 1),
    Sketcher.Constraint("Tangent", 6, 2, 7, 2),
    Sketcher.Constraint("Tangent", 7, 1, 4, 1),
    Sketcher.Constraint("Horizontal", 0),
    Sketcher.Constraint("Horizontal", 2),
    Sketcher.Constraint("Horizontal", 4),
    Sketcher.Constraint("Horizontal", 6),
    Sketcher.Constraint("Equal", 3, 5),
    Sketcher.Constraint("Vertical", 1, 3, 5, 3),
    Sketcher.Constraint("Vertical", 3, 3, 7, 3),
    Sketcher.Constraint("Radius", 1, 3.0),
    Sketcher.Constraint("DistanceX", 0, 2, 0, 1, 3.0),
    Sketcher.Constraint("DistanceY", -1, 1, 1, 3, 518.0),
    Sketcher.Constraint("DistanceY", -1, 1, 5, 3, 8.0),
    Sketcher.Constraint("DistanceX", 1, 3, -1, 1, 1.5),
])
pocket5 = body.newObject("PartDesign::Pocket", "Pocket004")
pocket5.Profile = sketch7
pocket5.Type = "ThroughAll"
pocket5.Reversed = True

# Sketch on XY plane
sketch8 = body.newObject("Sketcher::SketchObject", "Sketch007")
sketch8.AttachmentSupport = (doc.getObject("XY_Plane"), [""])
sketch8.MapMode = "FlatFace"
sketch8.AttachmentOffset = App.Placement(V(0, 0, 17.5), App.Rotation())
sketch8.addGeometry([
    Part.LineSegment(V(-0.25, 34.5, 0), V(-4.5, 34.5, 0)),  # 0
    Part.LineSegment(V(-4.5, 34.5, 0), V(-4.5, 33.5, 0)),  # 1
    Part.LineSegment(V(-4.5, 33.5, 0), V(-0.25, 34.5, 0)),  # 2
    Part.LineSegment(V(-0.25, 34.5, 0), V(-0.25, 33.5, 0)),  # 3
    Part.LineSegment(V(-0.25, 33.5, 0), V(0.25, 33.5, 0)),  # 4
    Part.LineSegment(V(0.25, 33.5, 0), V(0.25, 34.5, 0)),  # 5
    Part.LineSegment(V(0.25, 34.5, 0), V(-0.25, 34.5, 0)),  # 6
    Part.LineSegment(V(4.5, 34.5, 0), V(0.25, 34.5, 0)),  # 7
    Part.LineSegment(V(0.25, 34.5, 0), V(4.5, 33.5, 0)),  # 8
    Part.LineSegment(V(4.5, 33.5, 0), V(4.5, 34.5, 0)),  # 9
], False)
sketch8.addConstraint([
    Sketcher.Constraint("Coincident", 0, 2, 1, 1),
    Sketcher.Constraint("Coincident", 1, 2, 2, 1),
    Sketcher.Constraint("Coincident", 2, 2, 0, 1),
    Sketcher.Constraint("Coincident", 3, 2, 4, 1),
    Sketcher.Constraint("Coincident", 4, 2, 5, 1),
    Sketcher.Constraint("Coincident", 5, 2, 6, 1),
    Sketcher.Constraint("Coincident", 6, 2, 3, 1),
    Sketcher.Constraint("Coincident", 7, 2, 8, 1),
    Sketcher.Constraint("Coincident", 8, 2, 9, 1),
    Sketcher.Constraint("Coincident", 9, 2, 7, 1),
    Sketcher.Constraint("Horizontal", 0),
    Sketcher.Constraint("Vertical", 1),
    Sketcher.Constraint("Vertical", 3),
    Sketcher.Constraint("Horizontal", 4),
    Sketcher.Constraint("Vertical", 5),
    Sketcher.Constraint("Horizontal", 6),
    Sketcher.Constraint("Horizontal", 7),
    Sketcher.Constraint("Vertical", 9),
    Sketcher.Constraint("Coincident", 6, 2, 2, 2),
    Sketcher.Constraint("Coincident", 7, 2, 5, 2),
    Sketcher.Constraint("Symmetric", 1, 2, 8, 2, -2),
    Sketcher.Constraint("Horizontal", 1, 2, 3, 2),
    Sketcher.Constraint("Equal", 0, 7),
    Sketcher.Constraint("DistanceY", 1, 2, 1, 1, 1.0),
    Sketcher.Constraint("DistanceX", 4, 1, 4, 2, 0.5),
    Sketcher.Constraint("DistanceX", 0, 2, 0, 1, 4.25),
    Sketcher.Constraint("DistanceY", -1, 1, 0, 2, 34.5),
])
pocket6 = body.newObject("PartDesign::Pocket", "Pocket005")
pocket6.Profile = sketch8
pocket6.Length = 491
pocket6.Reversed = True

doc.recompute()
